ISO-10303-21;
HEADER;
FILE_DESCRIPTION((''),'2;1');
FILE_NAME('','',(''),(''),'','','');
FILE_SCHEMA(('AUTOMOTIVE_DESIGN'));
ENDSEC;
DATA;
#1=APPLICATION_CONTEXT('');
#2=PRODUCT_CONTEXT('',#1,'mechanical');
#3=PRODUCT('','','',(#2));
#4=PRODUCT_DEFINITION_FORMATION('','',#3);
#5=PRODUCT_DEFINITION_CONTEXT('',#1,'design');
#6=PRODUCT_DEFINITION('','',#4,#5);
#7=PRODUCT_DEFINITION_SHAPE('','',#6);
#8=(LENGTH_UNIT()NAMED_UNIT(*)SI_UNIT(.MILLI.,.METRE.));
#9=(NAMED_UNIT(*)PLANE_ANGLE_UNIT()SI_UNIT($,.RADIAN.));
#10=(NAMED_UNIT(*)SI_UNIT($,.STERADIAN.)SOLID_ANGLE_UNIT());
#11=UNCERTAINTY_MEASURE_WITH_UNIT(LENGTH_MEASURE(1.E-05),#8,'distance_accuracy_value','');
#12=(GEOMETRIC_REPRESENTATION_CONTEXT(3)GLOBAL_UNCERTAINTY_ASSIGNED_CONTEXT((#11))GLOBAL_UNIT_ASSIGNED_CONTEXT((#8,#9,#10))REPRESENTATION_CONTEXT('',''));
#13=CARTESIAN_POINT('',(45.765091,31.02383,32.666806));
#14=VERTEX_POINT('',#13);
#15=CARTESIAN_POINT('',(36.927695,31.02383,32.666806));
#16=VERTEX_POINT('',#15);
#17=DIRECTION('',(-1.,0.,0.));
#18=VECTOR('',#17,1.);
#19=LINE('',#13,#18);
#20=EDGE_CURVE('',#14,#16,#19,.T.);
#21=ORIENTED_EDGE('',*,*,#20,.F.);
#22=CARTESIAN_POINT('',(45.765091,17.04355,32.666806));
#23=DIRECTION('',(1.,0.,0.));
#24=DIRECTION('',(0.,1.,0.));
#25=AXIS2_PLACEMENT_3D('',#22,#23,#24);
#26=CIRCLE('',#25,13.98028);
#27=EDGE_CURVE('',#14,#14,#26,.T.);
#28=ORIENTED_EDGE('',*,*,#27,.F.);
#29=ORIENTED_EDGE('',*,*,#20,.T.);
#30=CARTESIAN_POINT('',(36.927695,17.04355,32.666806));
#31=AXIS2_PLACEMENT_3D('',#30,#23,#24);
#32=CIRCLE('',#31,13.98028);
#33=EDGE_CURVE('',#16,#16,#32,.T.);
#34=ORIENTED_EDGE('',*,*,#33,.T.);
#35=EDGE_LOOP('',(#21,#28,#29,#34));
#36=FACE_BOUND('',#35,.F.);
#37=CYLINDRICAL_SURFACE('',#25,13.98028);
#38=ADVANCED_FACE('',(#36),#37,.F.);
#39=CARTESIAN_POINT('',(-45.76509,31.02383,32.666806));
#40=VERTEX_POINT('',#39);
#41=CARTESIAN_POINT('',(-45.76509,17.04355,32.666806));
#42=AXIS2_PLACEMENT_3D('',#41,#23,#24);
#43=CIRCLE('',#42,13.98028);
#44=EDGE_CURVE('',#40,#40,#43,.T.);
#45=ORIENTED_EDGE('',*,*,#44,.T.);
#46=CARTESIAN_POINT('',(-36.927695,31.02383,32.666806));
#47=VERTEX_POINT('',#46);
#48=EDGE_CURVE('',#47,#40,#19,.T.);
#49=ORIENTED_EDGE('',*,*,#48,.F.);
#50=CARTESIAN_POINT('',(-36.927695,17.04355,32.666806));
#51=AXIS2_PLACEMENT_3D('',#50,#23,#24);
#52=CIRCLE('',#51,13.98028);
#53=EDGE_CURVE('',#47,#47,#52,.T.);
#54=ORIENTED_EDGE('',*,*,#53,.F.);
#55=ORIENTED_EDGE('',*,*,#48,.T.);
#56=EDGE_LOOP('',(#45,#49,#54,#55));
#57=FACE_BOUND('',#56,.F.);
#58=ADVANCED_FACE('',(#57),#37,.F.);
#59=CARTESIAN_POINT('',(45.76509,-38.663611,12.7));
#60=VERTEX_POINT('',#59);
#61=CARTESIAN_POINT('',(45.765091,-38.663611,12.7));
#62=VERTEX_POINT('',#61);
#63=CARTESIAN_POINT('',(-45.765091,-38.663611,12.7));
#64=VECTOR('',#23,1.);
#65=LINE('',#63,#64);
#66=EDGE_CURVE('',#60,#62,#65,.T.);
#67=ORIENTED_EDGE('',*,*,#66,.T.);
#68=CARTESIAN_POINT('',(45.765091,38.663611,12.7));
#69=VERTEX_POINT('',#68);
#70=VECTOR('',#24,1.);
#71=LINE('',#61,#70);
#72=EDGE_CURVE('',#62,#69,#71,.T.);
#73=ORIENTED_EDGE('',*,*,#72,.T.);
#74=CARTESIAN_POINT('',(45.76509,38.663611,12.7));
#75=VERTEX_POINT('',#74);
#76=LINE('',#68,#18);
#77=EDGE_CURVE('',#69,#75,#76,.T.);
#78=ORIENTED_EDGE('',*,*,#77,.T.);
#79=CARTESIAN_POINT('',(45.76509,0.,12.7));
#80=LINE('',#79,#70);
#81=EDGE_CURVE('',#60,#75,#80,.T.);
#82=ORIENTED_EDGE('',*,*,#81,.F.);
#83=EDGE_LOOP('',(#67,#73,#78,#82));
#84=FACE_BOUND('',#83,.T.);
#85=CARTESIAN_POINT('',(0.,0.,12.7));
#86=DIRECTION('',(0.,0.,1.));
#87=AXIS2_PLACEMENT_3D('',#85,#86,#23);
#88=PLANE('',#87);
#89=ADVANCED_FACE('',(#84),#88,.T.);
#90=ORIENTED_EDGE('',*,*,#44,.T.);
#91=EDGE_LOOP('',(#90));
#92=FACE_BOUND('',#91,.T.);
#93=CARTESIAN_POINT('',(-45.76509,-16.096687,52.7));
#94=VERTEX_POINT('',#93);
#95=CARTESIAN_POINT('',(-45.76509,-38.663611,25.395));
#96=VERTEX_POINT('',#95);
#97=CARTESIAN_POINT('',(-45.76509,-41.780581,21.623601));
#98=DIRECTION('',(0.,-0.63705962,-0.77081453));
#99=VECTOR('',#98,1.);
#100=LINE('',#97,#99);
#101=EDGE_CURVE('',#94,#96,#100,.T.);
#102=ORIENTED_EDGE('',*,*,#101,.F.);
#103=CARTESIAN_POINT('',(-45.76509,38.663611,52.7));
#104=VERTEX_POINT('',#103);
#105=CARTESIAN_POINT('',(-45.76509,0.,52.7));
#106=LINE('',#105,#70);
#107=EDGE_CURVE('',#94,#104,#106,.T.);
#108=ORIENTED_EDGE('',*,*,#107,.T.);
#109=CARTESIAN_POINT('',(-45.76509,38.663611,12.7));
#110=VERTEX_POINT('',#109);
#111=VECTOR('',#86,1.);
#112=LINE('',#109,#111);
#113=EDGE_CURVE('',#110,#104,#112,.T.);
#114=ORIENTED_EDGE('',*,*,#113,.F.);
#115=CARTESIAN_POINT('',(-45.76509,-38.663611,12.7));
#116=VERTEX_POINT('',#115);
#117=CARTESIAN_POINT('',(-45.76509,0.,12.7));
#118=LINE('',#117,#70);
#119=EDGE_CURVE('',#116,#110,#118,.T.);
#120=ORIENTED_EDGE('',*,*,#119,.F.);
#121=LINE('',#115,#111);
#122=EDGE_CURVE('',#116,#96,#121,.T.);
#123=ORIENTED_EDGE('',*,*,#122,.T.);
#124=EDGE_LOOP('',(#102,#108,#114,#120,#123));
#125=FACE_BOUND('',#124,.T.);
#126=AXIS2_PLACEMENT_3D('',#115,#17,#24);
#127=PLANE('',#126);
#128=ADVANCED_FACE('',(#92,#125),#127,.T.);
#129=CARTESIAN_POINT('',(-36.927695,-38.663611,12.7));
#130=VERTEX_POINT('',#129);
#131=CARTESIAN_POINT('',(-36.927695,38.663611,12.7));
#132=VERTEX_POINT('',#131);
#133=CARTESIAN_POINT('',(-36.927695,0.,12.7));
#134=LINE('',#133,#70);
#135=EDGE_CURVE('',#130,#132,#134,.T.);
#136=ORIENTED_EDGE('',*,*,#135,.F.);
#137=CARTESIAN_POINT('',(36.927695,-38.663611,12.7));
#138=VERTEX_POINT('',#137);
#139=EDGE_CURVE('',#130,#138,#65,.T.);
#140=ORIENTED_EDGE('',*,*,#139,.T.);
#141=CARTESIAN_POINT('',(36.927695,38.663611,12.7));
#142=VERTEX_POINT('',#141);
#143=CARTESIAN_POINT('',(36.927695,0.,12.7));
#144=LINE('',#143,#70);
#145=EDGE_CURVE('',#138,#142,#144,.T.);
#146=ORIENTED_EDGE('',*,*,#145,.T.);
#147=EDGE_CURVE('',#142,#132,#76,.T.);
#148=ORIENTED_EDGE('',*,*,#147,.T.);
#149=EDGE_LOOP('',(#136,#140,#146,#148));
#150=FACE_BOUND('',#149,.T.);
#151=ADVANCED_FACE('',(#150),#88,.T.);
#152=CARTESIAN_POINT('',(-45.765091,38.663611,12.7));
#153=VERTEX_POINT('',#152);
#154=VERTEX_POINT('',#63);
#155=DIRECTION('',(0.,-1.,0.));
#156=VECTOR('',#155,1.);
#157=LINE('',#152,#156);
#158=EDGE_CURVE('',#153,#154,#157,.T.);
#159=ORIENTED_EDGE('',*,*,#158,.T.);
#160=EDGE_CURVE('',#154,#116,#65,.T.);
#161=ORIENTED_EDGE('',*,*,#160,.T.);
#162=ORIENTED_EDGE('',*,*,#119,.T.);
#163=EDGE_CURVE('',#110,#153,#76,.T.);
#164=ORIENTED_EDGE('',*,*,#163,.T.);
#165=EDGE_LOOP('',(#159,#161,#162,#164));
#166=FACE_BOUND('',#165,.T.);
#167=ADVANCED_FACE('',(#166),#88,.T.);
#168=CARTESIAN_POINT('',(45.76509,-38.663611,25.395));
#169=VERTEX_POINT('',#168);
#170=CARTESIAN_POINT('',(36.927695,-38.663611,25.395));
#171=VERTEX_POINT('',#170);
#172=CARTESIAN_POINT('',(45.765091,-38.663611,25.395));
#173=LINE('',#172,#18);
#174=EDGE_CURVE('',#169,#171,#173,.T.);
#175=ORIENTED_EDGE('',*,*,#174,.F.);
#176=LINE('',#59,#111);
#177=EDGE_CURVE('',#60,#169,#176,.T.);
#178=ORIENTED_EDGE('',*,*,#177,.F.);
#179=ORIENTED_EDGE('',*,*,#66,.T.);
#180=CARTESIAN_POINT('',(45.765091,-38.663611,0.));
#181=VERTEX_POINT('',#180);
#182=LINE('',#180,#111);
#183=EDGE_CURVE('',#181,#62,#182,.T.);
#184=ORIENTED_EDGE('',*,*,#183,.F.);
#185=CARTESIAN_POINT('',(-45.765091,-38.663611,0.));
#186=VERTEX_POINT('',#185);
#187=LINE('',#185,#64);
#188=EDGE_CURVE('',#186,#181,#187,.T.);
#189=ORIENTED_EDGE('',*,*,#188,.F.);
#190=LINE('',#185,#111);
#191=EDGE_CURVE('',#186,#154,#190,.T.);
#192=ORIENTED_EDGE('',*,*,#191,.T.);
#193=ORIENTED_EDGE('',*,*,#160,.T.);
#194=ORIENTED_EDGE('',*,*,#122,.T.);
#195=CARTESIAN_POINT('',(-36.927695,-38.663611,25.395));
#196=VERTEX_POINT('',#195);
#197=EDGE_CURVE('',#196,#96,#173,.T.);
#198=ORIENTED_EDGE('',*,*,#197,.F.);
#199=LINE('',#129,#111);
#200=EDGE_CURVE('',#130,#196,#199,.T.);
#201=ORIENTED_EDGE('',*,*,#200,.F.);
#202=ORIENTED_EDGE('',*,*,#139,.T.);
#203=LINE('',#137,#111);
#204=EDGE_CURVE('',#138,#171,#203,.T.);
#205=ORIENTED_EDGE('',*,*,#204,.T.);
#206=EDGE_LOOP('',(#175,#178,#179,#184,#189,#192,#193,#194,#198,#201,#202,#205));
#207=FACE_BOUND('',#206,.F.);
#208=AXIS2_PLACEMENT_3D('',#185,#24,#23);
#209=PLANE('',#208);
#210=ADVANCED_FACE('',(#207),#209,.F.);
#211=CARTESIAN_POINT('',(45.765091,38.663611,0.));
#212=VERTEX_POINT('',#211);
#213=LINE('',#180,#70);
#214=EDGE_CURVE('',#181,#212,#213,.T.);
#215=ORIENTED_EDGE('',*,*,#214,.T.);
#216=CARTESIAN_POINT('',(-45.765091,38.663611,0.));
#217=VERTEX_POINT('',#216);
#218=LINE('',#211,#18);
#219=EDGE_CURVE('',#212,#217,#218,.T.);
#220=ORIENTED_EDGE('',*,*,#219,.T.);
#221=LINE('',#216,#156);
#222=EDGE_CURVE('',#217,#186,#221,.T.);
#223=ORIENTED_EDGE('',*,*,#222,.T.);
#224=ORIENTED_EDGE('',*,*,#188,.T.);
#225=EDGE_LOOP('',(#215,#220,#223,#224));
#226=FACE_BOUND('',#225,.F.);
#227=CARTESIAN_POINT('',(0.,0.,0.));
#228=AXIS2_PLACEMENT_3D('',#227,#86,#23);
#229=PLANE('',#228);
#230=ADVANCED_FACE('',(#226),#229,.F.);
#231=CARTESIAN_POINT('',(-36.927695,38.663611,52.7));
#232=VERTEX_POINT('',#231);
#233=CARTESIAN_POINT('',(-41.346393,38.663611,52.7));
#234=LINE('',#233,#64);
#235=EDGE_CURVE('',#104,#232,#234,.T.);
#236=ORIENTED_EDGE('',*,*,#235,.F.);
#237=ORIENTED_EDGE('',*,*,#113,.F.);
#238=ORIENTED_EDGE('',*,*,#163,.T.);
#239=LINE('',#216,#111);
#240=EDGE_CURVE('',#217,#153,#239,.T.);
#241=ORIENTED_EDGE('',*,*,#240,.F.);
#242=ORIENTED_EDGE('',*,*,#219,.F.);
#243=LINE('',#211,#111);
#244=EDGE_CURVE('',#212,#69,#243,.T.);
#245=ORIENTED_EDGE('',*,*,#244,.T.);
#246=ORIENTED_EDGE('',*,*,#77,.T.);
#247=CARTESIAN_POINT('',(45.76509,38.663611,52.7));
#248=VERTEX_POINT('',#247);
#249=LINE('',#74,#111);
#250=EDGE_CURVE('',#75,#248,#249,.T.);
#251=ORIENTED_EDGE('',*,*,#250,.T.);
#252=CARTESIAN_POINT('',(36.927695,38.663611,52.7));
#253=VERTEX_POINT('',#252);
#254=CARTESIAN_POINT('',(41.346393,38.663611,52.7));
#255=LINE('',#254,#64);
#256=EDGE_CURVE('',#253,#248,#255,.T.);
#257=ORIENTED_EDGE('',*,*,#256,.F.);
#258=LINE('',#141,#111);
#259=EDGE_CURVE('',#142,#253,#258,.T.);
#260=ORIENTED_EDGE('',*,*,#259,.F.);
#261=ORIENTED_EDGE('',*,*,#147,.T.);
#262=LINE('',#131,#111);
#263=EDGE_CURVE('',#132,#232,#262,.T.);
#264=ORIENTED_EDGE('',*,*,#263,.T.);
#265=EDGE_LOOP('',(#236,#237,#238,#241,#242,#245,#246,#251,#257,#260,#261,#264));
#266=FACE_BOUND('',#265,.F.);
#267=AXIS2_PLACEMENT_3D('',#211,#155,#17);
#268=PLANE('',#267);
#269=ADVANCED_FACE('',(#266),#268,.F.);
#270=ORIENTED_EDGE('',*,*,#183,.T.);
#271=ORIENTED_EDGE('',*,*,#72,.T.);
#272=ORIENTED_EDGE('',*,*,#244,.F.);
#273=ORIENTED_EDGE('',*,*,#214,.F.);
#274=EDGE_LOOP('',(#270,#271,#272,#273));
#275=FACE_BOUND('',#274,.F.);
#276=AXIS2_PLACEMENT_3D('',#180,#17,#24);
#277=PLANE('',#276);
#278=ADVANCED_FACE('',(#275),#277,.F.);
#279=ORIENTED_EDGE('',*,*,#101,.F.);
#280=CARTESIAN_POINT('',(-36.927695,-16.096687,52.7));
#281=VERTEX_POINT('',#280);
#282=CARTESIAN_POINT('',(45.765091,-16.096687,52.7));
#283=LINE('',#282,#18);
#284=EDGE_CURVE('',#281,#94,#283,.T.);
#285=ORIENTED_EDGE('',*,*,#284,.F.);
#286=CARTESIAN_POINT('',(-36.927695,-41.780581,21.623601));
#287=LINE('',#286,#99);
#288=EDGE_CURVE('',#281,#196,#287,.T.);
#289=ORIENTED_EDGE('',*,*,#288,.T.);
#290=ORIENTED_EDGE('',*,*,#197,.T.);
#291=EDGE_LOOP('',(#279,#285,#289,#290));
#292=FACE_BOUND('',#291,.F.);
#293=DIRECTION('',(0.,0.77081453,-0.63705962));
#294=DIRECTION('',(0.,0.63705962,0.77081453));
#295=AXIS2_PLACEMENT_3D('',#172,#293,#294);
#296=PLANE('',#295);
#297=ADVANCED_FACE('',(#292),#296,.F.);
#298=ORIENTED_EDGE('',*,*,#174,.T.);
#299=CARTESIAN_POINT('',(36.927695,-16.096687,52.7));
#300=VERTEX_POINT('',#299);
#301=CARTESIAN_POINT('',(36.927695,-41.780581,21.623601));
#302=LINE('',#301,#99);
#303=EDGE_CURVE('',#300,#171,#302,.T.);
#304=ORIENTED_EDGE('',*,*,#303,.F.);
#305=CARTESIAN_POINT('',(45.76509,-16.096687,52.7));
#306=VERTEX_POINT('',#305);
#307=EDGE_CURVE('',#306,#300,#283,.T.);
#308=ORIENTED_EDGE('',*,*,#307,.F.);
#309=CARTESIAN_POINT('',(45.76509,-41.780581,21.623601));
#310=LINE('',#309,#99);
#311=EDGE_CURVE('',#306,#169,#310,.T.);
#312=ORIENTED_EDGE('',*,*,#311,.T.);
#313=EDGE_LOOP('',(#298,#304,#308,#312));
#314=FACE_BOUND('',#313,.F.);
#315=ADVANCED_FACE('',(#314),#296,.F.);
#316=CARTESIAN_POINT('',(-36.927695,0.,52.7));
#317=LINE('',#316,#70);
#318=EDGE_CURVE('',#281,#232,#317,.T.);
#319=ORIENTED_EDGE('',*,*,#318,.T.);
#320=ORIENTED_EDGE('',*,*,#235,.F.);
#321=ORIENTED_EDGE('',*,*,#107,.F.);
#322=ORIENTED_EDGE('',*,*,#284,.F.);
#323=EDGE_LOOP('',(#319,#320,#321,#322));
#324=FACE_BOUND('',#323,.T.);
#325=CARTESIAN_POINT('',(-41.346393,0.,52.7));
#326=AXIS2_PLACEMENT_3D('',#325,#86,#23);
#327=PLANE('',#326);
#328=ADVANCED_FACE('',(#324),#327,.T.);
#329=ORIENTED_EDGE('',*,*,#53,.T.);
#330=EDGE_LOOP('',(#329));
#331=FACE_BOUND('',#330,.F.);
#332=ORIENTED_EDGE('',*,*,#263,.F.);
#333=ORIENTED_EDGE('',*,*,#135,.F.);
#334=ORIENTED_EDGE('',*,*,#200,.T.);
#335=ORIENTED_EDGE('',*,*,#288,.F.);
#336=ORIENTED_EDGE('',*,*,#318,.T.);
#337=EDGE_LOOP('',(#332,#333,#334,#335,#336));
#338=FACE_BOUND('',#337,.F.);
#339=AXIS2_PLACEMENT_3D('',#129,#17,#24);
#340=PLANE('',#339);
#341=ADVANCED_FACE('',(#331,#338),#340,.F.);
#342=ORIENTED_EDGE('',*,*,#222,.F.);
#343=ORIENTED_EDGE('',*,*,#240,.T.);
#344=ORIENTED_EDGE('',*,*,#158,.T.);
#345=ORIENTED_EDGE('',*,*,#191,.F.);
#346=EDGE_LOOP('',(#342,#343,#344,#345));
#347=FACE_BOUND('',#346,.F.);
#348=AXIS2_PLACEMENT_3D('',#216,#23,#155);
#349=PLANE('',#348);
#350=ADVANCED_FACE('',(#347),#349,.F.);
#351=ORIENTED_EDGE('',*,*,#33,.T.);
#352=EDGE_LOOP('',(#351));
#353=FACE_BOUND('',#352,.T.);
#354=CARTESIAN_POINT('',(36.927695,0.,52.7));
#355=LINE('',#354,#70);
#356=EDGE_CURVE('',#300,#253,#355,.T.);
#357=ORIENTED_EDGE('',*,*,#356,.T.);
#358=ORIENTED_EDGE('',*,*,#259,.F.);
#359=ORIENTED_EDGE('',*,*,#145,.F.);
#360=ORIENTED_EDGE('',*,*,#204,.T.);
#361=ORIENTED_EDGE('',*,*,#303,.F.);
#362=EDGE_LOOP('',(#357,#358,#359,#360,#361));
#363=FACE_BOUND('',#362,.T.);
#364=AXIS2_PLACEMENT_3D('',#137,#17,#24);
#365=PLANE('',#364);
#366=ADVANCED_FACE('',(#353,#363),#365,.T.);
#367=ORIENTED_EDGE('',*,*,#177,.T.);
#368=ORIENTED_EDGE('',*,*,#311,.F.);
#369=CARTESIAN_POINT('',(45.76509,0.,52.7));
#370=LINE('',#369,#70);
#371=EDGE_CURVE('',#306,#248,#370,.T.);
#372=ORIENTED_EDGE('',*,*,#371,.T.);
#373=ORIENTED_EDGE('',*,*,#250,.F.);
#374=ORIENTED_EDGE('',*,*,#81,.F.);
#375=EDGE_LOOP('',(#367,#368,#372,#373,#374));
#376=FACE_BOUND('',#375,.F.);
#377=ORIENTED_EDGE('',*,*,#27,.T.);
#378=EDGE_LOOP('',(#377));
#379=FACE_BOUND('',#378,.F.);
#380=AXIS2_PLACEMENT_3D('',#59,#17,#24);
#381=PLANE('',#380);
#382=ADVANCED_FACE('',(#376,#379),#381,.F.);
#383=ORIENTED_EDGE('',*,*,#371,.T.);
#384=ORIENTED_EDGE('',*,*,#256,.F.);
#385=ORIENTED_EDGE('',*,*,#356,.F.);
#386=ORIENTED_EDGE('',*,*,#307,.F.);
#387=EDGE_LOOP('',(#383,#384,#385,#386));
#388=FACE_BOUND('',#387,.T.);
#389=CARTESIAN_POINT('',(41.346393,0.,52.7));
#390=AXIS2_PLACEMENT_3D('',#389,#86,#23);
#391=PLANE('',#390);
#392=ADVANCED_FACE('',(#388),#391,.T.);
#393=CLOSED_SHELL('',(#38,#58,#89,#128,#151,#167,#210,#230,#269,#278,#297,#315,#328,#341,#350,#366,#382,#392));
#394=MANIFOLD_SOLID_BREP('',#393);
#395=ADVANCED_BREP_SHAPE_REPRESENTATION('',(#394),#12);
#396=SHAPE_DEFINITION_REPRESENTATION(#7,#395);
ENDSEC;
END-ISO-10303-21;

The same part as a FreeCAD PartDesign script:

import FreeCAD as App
import Part
import Sketcher

V = App.Vector
Q = App.Units.Quantity


def add_polygon(sketch, points):
    """Adds a closed chain of lines whose ends are joined by coincident constraints."""
    first, n = sketch.GeometryCount, len(points)
    for a, b in zip(points, points[1:] + points[:1]):
        sketch.addGeometry(Part.LineSegment(App.Vector(*a, 0), App.Vector(*b, 0)), False)
    for i in range(n):
        sketch.addConstraint(Sketcher.Constraint("Coincident", first + i, 2, first + (i + 1) % n, 1))

doc = App.newDocument("Part")
params = doc.addObject("Spreadsheet::Sheet", "Params")
for row, (alias, value) in enumerate([
    ("pad1_length", "0.5 in"),
    ("pad2_length", "40 mm"),
    ("sketch3_height", "1.075 in"),
], start=1):
    params.set(f"A{row}", alias)
    params.set(f"B{row}", "=" + value)
    params.setAlias(f"B{row}", alias)

body = doc.addObject("PartDesign::Body", "Body")

sketch1 = body.newObject("Sketcher::SketchObject", "Sketch")
sketch1.AttachmentSupport = (doc.getObject("XY_Plane"), [""])
sketch1.MapMode = "FlatFace"
add_polygon(sketch1, [(-45.765091, 38.663611), (-45.765091, -38.663611), (45.765091, -38.663611), (45.765091, 38.663611)])
sketch1.addConstraint([
    Sketcher.Constraint("Vertical", 0),
    Sketcher.Constraint("Horizontal", 1),
    Sketcher.Constraint("Vertical", 2),
    Sketcher.Constraint("Horizontal", 3),
    Sketcher.Constraint("Symmetric", 0, 2, 2, 2, -1, 1),
    Sketcher.Constraint("DistanceX", 1, 1, 1, 2, 91.530182),
    Sketcher.Constraint("DistanceY", 0, 2, 0, 1, 77.327222),
])
pad1 = body.newObject("PartDesign::Pad", "Pad")
pad1.Profile = sketch1
pad1.setExpression("Length", "Params.pad1_length")

sketch2 = body.newObject("Sketcher::SketchObject", "Sketch001")
sketch2.AttachmentSupport = (doc.getObject("XY_Plane"), [""])
sketch2.MapMode = "FlatFace"
sketch2.AttachmentOffset = App.Placement(V(0, 0, 0.5 * 25.4), App.Rotation())
add_polygon(sketch2, [(36.927695, 38.663611), (36.927695, -38.663611), (45.76509, -38.663611), (45.76509, 38.663611)])
add_polygon(sketch2, [(-45.76509, 38.663611), (-45.76509, -38.663611), (-36.927695, -38.663611), (-36.927695, 38.663611)])
sketch2.addConstraint([
    Sketcher.Constraint("Vertical", 0),
    Sketcher.Constraint("Horizontal", 1),
    Sketcher.Constraint("Vertical", 2),
    Sketcher.Constraint("Horizontal", 3),
    Sketcher.Constraint("Vertical", 4),
    Sketcher.Constraint("Horizontal", 5),
    Sketcher.Constraint("Vertical", 6),
    Sketcher.Constraint("Horizontal", 7),
    Sketcher.Constraint("Symmetric", 2, 2, 4, 2, -1, 1),
    Sketcher.Constraint("Symmetric", 0, 2, 6, 2, -1, 1),
    Sketcher.Constraint("Horizontal", 1, 2, 4, 2),
    Sketcher.Constraint("DistanceX", 1, 1, 1, 2, 8.837395),
    Sketcher.Constraint("DistanceY", 0, 2, 0, 1, 77.327222),
    Sketcher.Constraint("DistanceX", -1, 1, 1, 2, 45.76509),
])
pad2 = body.newObject("PartDesign::Pad", "Pad001")
pad2.Profile = sketch2
pad2.setExpression("Length", "Params.pad2_length")

sketch3 = body.newObject("Sketcher::SketchObject", "Sketch002")
sketch3.AttachmentSupport = (doc.getObject("YZ_Plane"), [""])
sketch3.MapMode = "FlatFace"
sketch3.AttachmentOffset = App.Placement(V(0, 0, 45.765091), App.Rotation())
add_polygon(sketch3, [(-38.663611, 52.7), (-38.663611, 25.395), (-16.096687, 52.7)])
sketch3.addGeometry(Part.Circle(V(17.04355, 32.666806, 0), V(0, 0, 1), 13.98028), False)
sketch3.addConstraint([
    Sketcher.Constraint("Vertical", 0),
    Sketcher.Constraint("Horizontal", 2),
    Sketcher.Constraint("DistanceY", 0, 2, 0, 1, Q("1.075 in")),
    Sketcher.Constraint("Diameter", 3, 27.96056),
    Sketcher.Constraint("DistanceY", -1, 1, 0, 2, 25.395),
    Sketcher.Constraint("DistanceX", 2, 2, 2, 1, 22.566924),
    Sketcher.Constraint("DistanceX", -1, 1, 3, 3, 17.04355),
    Sketcher.Constraint("DistanceX", 0, 2, -1, 1, 38.663611),
    Sketcher.Constraint("DistanceY", -1, 1, 3, 3, 32.666806),
])
sketch3.setExpression("Constraints[5]", "Params.sketch3_height")
pocket1 = body.newObject("PartDesign::Pocket", "Pocket")
pocket1.Profile = sketch3
pocket1.Type = "ThroughAll"

doc.recompute()
